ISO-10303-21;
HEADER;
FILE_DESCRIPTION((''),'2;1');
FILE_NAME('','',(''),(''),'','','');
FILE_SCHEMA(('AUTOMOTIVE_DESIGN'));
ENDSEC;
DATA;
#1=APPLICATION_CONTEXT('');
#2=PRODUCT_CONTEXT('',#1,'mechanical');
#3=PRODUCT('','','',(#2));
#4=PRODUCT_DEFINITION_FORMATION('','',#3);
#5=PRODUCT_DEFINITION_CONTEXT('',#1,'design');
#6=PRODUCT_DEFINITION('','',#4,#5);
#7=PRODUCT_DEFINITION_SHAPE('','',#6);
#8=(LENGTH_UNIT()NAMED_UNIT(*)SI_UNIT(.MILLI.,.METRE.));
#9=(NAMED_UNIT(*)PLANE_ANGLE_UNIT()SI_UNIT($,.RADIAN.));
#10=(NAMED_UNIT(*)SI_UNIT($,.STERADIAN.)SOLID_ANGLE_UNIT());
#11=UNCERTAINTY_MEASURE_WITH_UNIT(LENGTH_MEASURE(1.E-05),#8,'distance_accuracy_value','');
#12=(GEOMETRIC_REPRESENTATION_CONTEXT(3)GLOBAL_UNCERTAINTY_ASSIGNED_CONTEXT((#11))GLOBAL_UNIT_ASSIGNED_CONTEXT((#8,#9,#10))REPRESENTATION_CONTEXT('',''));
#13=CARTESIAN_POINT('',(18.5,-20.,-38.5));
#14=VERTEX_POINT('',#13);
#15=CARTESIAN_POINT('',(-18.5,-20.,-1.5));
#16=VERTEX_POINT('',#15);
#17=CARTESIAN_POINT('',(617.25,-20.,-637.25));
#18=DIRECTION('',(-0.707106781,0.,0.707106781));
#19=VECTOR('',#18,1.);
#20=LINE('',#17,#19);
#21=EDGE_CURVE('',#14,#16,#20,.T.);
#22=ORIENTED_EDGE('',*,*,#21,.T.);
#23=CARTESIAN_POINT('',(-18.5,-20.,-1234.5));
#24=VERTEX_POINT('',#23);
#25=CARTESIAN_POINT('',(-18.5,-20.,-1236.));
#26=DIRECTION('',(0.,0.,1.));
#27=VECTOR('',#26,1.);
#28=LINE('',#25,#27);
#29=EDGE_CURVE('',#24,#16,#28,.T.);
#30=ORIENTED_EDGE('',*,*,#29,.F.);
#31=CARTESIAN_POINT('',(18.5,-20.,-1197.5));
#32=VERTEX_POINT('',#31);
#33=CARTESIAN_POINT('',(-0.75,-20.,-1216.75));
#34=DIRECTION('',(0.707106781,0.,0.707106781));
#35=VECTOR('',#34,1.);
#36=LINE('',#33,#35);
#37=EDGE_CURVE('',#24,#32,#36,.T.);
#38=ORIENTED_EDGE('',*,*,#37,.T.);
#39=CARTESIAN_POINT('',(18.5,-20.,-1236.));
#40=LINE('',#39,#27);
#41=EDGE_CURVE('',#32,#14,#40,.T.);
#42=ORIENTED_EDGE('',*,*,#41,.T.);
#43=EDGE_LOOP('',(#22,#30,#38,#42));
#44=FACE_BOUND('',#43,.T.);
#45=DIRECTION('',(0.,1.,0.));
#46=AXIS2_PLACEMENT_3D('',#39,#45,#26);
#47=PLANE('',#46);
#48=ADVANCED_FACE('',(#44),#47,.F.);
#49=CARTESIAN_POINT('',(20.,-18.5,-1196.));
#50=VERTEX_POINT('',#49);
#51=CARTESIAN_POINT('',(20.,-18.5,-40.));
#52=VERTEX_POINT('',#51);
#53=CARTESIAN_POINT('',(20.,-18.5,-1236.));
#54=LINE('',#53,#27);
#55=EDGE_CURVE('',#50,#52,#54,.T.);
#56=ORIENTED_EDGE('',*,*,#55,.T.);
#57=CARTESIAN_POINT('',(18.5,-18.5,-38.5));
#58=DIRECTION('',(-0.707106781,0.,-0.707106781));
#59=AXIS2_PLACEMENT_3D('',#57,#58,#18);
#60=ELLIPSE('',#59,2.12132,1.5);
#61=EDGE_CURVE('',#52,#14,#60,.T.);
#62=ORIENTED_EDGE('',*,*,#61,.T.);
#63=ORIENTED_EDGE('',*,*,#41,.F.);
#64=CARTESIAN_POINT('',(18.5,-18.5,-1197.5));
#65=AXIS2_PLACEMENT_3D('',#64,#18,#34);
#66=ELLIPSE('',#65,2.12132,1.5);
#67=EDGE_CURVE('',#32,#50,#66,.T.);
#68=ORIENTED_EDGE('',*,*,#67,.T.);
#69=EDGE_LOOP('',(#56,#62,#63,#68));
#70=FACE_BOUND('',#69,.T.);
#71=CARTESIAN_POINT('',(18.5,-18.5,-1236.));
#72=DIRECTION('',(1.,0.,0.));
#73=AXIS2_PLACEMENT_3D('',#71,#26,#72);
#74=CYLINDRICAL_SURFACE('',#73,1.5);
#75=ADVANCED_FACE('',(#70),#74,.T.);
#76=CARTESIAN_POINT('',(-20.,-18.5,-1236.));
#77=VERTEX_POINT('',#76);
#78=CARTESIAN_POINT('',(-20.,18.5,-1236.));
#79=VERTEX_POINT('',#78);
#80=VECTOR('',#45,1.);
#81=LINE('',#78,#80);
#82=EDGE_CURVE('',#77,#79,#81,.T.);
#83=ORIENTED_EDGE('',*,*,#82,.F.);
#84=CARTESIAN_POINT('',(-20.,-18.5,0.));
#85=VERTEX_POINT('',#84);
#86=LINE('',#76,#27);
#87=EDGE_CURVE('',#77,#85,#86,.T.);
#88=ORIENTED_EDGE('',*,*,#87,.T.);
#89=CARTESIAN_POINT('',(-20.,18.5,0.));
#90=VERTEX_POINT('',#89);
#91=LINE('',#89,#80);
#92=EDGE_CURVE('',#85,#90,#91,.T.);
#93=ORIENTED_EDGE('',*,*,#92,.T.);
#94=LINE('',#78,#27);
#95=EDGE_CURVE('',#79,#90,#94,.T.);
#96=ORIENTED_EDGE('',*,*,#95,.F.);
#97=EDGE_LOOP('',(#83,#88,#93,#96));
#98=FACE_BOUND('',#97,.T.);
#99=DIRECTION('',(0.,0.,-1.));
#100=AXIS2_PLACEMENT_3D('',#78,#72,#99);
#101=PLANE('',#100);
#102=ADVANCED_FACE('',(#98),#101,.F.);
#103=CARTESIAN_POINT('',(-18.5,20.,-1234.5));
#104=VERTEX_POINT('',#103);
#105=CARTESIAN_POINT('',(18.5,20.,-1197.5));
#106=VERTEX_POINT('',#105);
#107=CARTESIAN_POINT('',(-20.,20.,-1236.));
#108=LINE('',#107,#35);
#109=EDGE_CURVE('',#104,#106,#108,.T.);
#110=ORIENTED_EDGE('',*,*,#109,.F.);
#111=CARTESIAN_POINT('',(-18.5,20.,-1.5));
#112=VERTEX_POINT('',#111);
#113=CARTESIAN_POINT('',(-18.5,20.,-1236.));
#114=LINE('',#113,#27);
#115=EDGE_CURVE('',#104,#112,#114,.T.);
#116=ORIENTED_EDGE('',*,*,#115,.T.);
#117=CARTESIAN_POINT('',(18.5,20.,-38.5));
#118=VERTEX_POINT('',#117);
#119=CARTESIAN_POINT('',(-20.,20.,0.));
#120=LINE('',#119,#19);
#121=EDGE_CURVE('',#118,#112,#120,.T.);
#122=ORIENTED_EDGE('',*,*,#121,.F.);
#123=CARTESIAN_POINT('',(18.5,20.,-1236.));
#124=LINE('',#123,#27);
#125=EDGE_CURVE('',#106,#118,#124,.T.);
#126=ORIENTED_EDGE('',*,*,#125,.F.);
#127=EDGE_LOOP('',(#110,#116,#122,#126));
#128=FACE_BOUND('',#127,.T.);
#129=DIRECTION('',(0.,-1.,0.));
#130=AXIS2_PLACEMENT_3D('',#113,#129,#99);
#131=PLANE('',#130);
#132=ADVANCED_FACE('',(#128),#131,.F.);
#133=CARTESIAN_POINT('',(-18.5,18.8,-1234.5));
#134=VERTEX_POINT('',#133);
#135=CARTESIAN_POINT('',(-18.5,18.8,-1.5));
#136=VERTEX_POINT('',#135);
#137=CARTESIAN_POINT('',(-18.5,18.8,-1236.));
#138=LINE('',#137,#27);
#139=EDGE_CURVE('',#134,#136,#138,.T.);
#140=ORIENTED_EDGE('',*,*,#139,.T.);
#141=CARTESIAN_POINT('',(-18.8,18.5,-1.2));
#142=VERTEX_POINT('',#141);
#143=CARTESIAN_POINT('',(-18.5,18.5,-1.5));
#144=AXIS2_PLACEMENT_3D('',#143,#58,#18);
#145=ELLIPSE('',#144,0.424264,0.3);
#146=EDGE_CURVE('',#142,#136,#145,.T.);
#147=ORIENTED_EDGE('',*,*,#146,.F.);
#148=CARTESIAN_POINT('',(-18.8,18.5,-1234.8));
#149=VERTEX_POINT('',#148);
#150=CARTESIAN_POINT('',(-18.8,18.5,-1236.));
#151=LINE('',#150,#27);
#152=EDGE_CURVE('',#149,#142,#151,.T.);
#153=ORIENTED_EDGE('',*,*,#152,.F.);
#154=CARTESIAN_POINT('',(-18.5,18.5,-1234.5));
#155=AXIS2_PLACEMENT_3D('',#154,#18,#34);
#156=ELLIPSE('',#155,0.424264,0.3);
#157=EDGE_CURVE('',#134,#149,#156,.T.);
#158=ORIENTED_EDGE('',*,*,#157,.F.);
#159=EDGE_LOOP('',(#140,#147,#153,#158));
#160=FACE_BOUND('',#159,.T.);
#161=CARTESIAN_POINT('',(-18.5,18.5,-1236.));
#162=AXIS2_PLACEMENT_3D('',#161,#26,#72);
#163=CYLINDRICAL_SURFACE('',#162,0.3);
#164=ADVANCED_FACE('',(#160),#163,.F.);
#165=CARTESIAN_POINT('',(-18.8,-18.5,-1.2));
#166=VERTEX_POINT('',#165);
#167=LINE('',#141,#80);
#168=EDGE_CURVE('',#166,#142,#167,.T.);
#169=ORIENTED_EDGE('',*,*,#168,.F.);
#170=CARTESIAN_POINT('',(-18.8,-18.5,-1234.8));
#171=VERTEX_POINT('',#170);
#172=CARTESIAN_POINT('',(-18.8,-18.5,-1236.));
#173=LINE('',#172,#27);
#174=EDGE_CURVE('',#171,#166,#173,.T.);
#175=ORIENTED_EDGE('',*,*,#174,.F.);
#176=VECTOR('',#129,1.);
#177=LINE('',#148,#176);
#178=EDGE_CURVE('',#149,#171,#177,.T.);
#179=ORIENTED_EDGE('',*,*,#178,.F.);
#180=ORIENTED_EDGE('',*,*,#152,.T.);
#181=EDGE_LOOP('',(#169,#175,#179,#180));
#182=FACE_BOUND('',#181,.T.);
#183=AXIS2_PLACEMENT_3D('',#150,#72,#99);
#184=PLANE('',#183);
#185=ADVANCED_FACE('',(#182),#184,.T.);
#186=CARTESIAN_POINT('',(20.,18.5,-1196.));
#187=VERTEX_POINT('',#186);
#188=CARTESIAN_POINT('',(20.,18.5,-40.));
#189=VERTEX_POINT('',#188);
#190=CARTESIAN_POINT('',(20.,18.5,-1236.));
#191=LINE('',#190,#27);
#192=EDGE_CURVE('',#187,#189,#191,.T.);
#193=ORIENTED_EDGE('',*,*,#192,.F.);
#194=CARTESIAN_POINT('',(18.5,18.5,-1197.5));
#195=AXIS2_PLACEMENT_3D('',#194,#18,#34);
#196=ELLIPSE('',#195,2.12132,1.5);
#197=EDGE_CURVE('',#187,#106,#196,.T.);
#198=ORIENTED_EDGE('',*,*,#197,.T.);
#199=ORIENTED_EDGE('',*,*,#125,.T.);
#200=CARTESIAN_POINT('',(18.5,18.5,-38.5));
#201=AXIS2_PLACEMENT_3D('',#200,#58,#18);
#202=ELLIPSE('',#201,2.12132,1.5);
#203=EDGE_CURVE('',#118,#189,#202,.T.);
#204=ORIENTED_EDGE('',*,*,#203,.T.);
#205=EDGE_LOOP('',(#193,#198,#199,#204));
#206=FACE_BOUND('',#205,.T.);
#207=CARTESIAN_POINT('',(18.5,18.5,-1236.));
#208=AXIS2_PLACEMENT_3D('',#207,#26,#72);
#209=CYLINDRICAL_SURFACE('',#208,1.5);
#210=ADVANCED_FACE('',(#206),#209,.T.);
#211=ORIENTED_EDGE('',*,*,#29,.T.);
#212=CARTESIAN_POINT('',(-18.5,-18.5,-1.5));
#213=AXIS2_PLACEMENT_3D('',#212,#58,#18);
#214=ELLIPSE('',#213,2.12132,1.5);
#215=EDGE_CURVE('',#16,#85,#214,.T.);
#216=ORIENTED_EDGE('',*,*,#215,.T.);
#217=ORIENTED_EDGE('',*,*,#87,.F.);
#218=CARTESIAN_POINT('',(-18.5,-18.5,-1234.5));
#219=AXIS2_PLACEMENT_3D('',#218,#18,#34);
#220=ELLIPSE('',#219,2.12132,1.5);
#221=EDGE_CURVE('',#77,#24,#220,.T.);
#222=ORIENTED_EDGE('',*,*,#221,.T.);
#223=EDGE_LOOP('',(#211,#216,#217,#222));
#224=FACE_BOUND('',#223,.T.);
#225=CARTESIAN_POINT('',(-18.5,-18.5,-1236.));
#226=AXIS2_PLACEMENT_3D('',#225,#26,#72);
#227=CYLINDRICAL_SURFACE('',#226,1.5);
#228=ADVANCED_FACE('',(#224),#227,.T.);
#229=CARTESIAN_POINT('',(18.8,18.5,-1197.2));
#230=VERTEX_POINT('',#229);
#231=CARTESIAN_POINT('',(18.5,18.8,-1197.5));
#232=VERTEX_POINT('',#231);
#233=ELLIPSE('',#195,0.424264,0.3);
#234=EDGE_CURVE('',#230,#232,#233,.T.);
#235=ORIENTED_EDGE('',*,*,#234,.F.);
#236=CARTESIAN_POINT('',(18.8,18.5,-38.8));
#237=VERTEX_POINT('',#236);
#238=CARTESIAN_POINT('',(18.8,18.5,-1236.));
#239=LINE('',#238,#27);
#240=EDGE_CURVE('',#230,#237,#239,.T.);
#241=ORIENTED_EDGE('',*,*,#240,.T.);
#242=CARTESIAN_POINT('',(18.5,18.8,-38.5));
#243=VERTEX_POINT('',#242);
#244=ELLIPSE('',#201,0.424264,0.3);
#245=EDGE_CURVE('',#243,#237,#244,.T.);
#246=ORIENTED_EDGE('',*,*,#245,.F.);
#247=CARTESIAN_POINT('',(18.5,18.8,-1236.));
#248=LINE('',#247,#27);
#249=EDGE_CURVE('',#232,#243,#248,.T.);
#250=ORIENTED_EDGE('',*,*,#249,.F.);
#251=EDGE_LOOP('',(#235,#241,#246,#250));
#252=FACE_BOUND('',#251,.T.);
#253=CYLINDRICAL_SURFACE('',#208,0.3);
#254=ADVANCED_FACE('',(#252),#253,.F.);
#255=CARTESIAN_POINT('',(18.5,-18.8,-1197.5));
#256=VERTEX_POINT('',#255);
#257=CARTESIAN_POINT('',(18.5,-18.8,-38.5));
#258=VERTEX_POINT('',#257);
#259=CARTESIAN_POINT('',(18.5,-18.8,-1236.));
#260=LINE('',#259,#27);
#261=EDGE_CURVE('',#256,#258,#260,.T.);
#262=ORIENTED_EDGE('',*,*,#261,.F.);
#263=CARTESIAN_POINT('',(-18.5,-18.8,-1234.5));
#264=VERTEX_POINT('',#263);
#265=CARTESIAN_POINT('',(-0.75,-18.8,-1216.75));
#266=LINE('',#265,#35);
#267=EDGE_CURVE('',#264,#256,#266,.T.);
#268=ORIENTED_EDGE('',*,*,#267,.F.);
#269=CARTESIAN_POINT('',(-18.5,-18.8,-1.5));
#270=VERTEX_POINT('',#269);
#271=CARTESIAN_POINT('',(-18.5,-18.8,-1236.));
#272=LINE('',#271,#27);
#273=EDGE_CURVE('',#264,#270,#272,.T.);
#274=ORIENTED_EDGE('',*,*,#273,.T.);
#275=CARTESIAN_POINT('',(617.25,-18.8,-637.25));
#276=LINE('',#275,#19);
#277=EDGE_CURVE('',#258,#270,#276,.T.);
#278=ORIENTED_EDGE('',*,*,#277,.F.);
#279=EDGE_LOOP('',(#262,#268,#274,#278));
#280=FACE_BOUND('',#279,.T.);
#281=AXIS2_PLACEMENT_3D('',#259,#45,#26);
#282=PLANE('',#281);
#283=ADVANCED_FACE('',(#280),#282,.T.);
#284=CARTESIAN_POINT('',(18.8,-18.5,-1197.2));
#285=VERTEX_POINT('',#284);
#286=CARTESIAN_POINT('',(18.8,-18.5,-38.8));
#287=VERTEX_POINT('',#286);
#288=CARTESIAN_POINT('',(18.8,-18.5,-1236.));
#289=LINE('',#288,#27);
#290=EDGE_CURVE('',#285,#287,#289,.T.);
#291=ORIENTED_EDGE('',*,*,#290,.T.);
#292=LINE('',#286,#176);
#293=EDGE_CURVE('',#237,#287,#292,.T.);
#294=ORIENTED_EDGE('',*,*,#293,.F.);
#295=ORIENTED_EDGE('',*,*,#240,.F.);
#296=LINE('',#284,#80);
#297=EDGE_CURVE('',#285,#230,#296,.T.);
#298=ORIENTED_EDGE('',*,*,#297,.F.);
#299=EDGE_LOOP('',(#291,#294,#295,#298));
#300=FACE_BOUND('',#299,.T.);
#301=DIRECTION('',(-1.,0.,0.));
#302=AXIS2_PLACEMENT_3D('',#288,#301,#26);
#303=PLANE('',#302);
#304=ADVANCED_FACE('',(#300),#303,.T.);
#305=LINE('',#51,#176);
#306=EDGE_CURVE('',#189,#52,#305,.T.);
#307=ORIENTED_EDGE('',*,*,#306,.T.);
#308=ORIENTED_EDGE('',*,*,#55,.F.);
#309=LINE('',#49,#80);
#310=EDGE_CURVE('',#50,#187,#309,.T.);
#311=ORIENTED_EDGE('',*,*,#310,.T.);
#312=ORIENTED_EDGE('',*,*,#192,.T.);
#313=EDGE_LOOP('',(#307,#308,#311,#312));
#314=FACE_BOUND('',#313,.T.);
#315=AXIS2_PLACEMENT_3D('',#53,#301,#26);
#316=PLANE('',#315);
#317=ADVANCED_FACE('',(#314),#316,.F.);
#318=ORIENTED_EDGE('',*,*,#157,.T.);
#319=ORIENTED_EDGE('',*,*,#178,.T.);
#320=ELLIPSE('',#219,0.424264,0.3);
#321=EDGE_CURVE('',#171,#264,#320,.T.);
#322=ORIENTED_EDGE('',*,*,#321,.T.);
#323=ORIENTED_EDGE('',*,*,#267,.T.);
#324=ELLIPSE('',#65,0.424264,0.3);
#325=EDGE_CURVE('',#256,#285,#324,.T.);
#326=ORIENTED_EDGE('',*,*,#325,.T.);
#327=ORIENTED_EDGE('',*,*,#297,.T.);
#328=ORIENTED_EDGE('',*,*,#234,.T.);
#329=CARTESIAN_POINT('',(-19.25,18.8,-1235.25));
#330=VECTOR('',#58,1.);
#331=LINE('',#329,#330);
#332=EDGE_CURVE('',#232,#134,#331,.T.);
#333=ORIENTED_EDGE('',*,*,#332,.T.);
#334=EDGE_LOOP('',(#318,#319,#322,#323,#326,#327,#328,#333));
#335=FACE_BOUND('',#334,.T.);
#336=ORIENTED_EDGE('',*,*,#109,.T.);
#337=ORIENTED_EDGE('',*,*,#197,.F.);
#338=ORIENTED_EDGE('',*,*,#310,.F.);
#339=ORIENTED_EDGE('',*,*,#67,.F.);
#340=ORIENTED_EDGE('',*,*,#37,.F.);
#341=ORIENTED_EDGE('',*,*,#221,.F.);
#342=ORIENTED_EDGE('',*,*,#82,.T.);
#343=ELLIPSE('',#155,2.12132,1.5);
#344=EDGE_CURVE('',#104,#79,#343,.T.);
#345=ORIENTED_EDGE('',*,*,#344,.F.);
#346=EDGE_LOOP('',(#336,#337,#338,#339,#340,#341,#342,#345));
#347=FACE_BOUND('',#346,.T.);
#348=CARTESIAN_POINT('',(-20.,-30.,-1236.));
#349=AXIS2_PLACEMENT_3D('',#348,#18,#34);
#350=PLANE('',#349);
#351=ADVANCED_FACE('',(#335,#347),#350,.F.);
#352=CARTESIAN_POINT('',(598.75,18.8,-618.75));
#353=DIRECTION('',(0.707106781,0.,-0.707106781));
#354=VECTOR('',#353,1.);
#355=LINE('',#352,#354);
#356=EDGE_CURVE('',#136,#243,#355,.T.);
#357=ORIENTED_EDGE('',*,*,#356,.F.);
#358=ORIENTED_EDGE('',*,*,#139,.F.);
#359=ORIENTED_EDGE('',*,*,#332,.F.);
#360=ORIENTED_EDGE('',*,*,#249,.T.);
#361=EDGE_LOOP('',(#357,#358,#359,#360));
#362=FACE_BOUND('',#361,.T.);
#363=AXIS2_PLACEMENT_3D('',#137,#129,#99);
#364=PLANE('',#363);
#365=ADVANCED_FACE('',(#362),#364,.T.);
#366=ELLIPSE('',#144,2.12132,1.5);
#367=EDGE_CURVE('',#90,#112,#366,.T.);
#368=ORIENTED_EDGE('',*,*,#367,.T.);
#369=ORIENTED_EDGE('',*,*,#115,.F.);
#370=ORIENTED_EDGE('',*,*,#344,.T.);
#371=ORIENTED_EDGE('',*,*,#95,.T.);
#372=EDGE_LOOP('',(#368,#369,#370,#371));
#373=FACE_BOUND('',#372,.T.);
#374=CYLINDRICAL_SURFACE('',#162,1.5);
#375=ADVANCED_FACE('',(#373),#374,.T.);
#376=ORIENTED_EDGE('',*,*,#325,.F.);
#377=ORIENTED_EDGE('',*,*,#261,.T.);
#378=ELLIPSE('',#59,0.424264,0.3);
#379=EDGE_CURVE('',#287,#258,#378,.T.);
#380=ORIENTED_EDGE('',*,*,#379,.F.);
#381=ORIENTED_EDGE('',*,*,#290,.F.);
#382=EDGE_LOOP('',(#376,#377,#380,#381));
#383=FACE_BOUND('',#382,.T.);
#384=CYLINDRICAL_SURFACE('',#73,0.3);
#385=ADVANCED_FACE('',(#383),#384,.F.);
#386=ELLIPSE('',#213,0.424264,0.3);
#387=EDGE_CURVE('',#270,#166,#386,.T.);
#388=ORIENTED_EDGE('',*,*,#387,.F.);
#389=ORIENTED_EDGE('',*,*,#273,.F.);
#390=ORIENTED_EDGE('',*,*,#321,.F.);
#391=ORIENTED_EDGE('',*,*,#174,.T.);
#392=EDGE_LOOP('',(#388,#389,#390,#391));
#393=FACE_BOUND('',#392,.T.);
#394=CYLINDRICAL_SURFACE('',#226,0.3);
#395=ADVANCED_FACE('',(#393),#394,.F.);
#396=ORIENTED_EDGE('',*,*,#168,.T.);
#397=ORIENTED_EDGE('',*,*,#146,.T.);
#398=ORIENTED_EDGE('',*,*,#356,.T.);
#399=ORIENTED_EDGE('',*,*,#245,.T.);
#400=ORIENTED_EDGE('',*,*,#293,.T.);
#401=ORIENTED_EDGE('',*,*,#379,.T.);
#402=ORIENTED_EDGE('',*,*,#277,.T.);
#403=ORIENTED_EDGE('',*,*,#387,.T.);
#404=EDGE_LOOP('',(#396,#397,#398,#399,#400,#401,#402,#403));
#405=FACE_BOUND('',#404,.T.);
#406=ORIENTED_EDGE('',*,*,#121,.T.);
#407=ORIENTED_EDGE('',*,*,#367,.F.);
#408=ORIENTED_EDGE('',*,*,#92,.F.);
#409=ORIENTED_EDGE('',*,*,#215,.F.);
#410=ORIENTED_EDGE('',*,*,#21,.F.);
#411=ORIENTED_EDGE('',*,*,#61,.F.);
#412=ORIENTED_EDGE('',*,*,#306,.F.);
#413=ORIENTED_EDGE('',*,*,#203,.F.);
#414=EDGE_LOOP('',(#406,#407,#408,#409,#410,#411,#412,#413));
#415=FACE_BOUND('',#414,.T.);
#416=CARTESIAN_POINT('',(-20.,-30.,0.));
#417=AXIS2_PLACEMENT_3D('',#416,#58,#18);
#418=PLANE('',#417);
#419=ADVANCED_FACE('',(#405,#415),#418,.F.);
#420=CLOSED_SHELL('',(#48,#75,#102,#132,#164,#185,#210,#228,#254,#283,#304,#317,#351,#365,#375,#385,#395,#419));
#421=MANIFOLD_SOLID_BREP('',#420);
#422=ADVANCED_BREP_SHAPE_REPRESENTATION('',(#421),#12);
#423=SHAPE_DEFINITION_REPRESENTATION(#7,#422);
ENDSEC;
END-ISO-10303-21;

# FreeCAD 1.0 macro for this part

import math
import FreeCAD as App
import Part
import Sketcher
Q = App.Units.Quantity


def add_polygon(sketch, points):
    """Adds a closed chain of lines whose ends are joined by coincident constraints."""
    first, n = sketch.GeometryCount, len(points)
    for a, b in zip(points, points[1:] + points[:1]):
        sketch.addGeometry(Part.LineSegment(App.Vector(*a, 0), App.Vector(*b, 0)), False)
    for i in range(n):
        sketch.addConstraint(Sketcher.Constraint("Coincident", first + i, 2, first + (i + 1) % n, 1))

doc = App.newDocument("Part")
body = doc.addObject("PartDesign::Body", "Body")

sketch1 = body.newObject("Sketcher::SketchObject", "Sketch")
sketch1.AttachmentSupport = (doc.getObject("XY_Plane"), [""])
sketch1.MapMode = "FlatFace"
sketch1.addGeometry([
    Part.LineSegment(App.Vector(18.5, -20, 0), App.Vector(-18.5, -20, 0)),
    Part.ArcOfCircle(Part.Circle(App.Vector(-18.5, -18.5, 0), App.Vector(0, 0, 1), 1.5), math.radians(180), math.radians(270)),
    Part.LineSegment(App.Vector(-20, -18.5, 0), App.Vector(-20, 18.5, 0)),
    Part.ArcOfCircle(Part.Circle(App.Vector(-18.5, 18.5, 0), App.Vector(0, 0, 1), 1.5), math.radians(90), math.radians(180)),
    Part.LineSegment(App.Vector(-18.5, 20, 0), App.Vector(18.5, 20, 0)),
    Part.ArcOfCircle(Part.Circle(App.Vector(18.5, 18.5, 0), App.Vector(0, 0, 1), 1.5), math.radians(0), math.radians(90)),
    Part.LineSegment(App.Vector(20, 18.5, 0), App.Vector(20, -18.5, 0)),
    Part.ArcOfCircle(Part.Circle(App.Vector(18.5, -18.5, 0), App.Vector(0, 0, 1), 1.5), math.radians(-90), math.radians(0)),
    Part.LineSegment(App.Vector(-18.5, -18.8, 0), App.Vector(18.5, -18.8, 0)),
    Part.ArcOfCircle(Part.Circle(App.Vector(18.5, -18.5, 0), App.Vector(0, 0, 1), 0.3), math.radians(-90), math.radians(0)),
    Part.LineSegment(App.Vector(18.8, -18.5, 0), App.Vector(18.8, 18.5, 0)),
    Part.ArcOfCircle(Part.Circle(App.Vector(18.5, 18.5, 0), App.Vector(0, 0, 1), 0.3), math.radians(0), math.radians(90)),
    Part.LineSegment(App.Vector(18.5, 18.8, 0), App.Vector(-18.5, 18.8, 0)),
    Part.ArcOfCircle(Part.Circle(App.Vector(-18.5, 18.5, 0), App.Vector(0, 0, 1), 0.3), math.radians(90), math.radians(180)),
    Part.LineSegment(App.Vector(-18.8, 18.5, 0), App.Vector(-18.8, -18.5, 0)),
    Part.ArcOfCircle(Part.Circle(App.Vector(-18.5, -18.5, 0), App.Vector(0, 0, 1), 0.3), math.radians(-180), math.radians(-90)),
], False)
sketch1.addConstraint([
    Sketcher.Constraint("Tangent", 0, 2, 1, 2),
    Sketcher.Constraint("Tangent", 1, 1, 2, 1),
    Sketcher.Constraint("Tangent", 2, 2, 3, 2),
    Sketcher.Constraint("Tangent", 3, 1, 4, 1),
    Sketcher.Constraint("Tangent", 4, 2, 5, 2),
    Sketcher.Constraint("Tangent", 5, 1, 6, 1),
    Sketcher.Constraint("Tangent", 6, 2, 7, 2),
    Sketcher.Constraint("Tangent", 7, 1, 0, 1),
    Sketcher.Constraint("Tangent", 8, 2, 9, 1),
    Sketcher.Constraint("Tangent", 9, 2, 10, 1),
    Sketcher.Constraint("Tangent", 10, 2, 11, 1),
    Sketcher.Constraint("Tangent", 11, 2, 12, 1),
    Sketcher.Constraint("Tangent", 12, 2, 13, 1),
    Sketcher.Constraint("Tangent", 13, 2, 14, 1),
    Sketcher.Constraint("Tangent", 14, 2, 15, 1),
    Sketcher.Constraint("Tangent", 15, 2, 8, 1),
    Sketcher.Constraint("Horizontal", 0),
    Sketcher.Constraint("Vertical", 2),
    Sketcher.Constraint("Horizontal", 4),
    Sketcher.Constraint("Vertical", 6),
    Sketcher.Constraint("Horizontal", 8),
    Sketcher.Constraint("Vertical", 10),
    Sketcher.Constraint("Horizontal", 12),
    Sketcher.Constraint("Vertical", 14),
    Sketcher.Constraint("Coincident", 9, 3, 7, 3),
    Sketcher.Constraint("Coincident", 11, 3, 5, 3),
    Sketcher.Constraint("Coincident", 13, 3, 3, 3),
    Sketcher.Constraint("Equal", 1, 3),
    Sketcher.Constraint("Equal", 3, 5),
    Sketcher.Constraint("Equal", 5, 7),
    Sketcher.Constraint("Equal", 13, 15),
    Sketcher.Constraint("Symmetric", 1, 3, 5, 3, -1, 1),
    Sketcher.Constraint("Equal", 12, 2),
    Sketcher.Constraint("Radius", 1, Q("1.5 mm")),
    Sketcher.Constraint("Radius", 9, Q("0.3 mm")),
    Sketcher.Constraint("DistanceX", 0, 2, 0, 1, Q("37 mm")),
])
pad1 = body.newObject("PartDesign::Pad", "Pad")
pad1.Profile = sketch1
pad1.Length = 1236
pad1.Reversed = True

sketch2 = body.newObject("Sketcher::SketchObject", "Sketch001")
sketch2.AttachmentSupport = (doc.getObject("XZ_Plane"), [""])
sketch2.MapMode = "FlatFace"
sketch2.AttachmentOffset = App.Placement(App.Vector(0, 0, -20), App.Rotation())
add_polygon(sketch2, [(-20, -1236), (33, -1183), (17, -1270)])
add_polygon(sketch2, [(-20, 0), (17, 34), (33, -53)])
sketch2.addConstraint([
    Sketcher.Constraint("PointOnObject", 5, 2, -1),
    Sketcher.Constraint("Perpendicular", 0, 5),
    Sketcher.Constraint("Vertical", 1, 2, 3, 2),
    Sketcher.Constraint("Vertical", 0, 2, 4, 2),
    Sketcher.Constraint("Vertical", 2, 2, 5, 2),
    Sketcher.Constraint("Equal", 2, 3),
    Sketcher.Constraint("Equal", 1, 4),
    Sketcher.Constraint("DistanceX", 2, 2, -1, 1, Q("20 mm")),
    Sketcher.Constraint("DistanceY", 2, 2, -1, 1, Q("1236 mm")),
    Sketcher.Constraint("DistanceX", -1, 1, 0, 2, Q("33.292002 mm")),
    Sketcher.Constraint("Distance", 1, Q("88.591159 mm")),
    Sketcher.Constraint("DistanceX", -1, 1, 1, 2, Q("17.414649 mm")),
])
pocket1 = body.newObject("PartDesign::Pocket", "Pocket")
pocket1.Profile = sketch2
pocket1.Length = 50
pocket1.Reversed = True

doc.recompute()
